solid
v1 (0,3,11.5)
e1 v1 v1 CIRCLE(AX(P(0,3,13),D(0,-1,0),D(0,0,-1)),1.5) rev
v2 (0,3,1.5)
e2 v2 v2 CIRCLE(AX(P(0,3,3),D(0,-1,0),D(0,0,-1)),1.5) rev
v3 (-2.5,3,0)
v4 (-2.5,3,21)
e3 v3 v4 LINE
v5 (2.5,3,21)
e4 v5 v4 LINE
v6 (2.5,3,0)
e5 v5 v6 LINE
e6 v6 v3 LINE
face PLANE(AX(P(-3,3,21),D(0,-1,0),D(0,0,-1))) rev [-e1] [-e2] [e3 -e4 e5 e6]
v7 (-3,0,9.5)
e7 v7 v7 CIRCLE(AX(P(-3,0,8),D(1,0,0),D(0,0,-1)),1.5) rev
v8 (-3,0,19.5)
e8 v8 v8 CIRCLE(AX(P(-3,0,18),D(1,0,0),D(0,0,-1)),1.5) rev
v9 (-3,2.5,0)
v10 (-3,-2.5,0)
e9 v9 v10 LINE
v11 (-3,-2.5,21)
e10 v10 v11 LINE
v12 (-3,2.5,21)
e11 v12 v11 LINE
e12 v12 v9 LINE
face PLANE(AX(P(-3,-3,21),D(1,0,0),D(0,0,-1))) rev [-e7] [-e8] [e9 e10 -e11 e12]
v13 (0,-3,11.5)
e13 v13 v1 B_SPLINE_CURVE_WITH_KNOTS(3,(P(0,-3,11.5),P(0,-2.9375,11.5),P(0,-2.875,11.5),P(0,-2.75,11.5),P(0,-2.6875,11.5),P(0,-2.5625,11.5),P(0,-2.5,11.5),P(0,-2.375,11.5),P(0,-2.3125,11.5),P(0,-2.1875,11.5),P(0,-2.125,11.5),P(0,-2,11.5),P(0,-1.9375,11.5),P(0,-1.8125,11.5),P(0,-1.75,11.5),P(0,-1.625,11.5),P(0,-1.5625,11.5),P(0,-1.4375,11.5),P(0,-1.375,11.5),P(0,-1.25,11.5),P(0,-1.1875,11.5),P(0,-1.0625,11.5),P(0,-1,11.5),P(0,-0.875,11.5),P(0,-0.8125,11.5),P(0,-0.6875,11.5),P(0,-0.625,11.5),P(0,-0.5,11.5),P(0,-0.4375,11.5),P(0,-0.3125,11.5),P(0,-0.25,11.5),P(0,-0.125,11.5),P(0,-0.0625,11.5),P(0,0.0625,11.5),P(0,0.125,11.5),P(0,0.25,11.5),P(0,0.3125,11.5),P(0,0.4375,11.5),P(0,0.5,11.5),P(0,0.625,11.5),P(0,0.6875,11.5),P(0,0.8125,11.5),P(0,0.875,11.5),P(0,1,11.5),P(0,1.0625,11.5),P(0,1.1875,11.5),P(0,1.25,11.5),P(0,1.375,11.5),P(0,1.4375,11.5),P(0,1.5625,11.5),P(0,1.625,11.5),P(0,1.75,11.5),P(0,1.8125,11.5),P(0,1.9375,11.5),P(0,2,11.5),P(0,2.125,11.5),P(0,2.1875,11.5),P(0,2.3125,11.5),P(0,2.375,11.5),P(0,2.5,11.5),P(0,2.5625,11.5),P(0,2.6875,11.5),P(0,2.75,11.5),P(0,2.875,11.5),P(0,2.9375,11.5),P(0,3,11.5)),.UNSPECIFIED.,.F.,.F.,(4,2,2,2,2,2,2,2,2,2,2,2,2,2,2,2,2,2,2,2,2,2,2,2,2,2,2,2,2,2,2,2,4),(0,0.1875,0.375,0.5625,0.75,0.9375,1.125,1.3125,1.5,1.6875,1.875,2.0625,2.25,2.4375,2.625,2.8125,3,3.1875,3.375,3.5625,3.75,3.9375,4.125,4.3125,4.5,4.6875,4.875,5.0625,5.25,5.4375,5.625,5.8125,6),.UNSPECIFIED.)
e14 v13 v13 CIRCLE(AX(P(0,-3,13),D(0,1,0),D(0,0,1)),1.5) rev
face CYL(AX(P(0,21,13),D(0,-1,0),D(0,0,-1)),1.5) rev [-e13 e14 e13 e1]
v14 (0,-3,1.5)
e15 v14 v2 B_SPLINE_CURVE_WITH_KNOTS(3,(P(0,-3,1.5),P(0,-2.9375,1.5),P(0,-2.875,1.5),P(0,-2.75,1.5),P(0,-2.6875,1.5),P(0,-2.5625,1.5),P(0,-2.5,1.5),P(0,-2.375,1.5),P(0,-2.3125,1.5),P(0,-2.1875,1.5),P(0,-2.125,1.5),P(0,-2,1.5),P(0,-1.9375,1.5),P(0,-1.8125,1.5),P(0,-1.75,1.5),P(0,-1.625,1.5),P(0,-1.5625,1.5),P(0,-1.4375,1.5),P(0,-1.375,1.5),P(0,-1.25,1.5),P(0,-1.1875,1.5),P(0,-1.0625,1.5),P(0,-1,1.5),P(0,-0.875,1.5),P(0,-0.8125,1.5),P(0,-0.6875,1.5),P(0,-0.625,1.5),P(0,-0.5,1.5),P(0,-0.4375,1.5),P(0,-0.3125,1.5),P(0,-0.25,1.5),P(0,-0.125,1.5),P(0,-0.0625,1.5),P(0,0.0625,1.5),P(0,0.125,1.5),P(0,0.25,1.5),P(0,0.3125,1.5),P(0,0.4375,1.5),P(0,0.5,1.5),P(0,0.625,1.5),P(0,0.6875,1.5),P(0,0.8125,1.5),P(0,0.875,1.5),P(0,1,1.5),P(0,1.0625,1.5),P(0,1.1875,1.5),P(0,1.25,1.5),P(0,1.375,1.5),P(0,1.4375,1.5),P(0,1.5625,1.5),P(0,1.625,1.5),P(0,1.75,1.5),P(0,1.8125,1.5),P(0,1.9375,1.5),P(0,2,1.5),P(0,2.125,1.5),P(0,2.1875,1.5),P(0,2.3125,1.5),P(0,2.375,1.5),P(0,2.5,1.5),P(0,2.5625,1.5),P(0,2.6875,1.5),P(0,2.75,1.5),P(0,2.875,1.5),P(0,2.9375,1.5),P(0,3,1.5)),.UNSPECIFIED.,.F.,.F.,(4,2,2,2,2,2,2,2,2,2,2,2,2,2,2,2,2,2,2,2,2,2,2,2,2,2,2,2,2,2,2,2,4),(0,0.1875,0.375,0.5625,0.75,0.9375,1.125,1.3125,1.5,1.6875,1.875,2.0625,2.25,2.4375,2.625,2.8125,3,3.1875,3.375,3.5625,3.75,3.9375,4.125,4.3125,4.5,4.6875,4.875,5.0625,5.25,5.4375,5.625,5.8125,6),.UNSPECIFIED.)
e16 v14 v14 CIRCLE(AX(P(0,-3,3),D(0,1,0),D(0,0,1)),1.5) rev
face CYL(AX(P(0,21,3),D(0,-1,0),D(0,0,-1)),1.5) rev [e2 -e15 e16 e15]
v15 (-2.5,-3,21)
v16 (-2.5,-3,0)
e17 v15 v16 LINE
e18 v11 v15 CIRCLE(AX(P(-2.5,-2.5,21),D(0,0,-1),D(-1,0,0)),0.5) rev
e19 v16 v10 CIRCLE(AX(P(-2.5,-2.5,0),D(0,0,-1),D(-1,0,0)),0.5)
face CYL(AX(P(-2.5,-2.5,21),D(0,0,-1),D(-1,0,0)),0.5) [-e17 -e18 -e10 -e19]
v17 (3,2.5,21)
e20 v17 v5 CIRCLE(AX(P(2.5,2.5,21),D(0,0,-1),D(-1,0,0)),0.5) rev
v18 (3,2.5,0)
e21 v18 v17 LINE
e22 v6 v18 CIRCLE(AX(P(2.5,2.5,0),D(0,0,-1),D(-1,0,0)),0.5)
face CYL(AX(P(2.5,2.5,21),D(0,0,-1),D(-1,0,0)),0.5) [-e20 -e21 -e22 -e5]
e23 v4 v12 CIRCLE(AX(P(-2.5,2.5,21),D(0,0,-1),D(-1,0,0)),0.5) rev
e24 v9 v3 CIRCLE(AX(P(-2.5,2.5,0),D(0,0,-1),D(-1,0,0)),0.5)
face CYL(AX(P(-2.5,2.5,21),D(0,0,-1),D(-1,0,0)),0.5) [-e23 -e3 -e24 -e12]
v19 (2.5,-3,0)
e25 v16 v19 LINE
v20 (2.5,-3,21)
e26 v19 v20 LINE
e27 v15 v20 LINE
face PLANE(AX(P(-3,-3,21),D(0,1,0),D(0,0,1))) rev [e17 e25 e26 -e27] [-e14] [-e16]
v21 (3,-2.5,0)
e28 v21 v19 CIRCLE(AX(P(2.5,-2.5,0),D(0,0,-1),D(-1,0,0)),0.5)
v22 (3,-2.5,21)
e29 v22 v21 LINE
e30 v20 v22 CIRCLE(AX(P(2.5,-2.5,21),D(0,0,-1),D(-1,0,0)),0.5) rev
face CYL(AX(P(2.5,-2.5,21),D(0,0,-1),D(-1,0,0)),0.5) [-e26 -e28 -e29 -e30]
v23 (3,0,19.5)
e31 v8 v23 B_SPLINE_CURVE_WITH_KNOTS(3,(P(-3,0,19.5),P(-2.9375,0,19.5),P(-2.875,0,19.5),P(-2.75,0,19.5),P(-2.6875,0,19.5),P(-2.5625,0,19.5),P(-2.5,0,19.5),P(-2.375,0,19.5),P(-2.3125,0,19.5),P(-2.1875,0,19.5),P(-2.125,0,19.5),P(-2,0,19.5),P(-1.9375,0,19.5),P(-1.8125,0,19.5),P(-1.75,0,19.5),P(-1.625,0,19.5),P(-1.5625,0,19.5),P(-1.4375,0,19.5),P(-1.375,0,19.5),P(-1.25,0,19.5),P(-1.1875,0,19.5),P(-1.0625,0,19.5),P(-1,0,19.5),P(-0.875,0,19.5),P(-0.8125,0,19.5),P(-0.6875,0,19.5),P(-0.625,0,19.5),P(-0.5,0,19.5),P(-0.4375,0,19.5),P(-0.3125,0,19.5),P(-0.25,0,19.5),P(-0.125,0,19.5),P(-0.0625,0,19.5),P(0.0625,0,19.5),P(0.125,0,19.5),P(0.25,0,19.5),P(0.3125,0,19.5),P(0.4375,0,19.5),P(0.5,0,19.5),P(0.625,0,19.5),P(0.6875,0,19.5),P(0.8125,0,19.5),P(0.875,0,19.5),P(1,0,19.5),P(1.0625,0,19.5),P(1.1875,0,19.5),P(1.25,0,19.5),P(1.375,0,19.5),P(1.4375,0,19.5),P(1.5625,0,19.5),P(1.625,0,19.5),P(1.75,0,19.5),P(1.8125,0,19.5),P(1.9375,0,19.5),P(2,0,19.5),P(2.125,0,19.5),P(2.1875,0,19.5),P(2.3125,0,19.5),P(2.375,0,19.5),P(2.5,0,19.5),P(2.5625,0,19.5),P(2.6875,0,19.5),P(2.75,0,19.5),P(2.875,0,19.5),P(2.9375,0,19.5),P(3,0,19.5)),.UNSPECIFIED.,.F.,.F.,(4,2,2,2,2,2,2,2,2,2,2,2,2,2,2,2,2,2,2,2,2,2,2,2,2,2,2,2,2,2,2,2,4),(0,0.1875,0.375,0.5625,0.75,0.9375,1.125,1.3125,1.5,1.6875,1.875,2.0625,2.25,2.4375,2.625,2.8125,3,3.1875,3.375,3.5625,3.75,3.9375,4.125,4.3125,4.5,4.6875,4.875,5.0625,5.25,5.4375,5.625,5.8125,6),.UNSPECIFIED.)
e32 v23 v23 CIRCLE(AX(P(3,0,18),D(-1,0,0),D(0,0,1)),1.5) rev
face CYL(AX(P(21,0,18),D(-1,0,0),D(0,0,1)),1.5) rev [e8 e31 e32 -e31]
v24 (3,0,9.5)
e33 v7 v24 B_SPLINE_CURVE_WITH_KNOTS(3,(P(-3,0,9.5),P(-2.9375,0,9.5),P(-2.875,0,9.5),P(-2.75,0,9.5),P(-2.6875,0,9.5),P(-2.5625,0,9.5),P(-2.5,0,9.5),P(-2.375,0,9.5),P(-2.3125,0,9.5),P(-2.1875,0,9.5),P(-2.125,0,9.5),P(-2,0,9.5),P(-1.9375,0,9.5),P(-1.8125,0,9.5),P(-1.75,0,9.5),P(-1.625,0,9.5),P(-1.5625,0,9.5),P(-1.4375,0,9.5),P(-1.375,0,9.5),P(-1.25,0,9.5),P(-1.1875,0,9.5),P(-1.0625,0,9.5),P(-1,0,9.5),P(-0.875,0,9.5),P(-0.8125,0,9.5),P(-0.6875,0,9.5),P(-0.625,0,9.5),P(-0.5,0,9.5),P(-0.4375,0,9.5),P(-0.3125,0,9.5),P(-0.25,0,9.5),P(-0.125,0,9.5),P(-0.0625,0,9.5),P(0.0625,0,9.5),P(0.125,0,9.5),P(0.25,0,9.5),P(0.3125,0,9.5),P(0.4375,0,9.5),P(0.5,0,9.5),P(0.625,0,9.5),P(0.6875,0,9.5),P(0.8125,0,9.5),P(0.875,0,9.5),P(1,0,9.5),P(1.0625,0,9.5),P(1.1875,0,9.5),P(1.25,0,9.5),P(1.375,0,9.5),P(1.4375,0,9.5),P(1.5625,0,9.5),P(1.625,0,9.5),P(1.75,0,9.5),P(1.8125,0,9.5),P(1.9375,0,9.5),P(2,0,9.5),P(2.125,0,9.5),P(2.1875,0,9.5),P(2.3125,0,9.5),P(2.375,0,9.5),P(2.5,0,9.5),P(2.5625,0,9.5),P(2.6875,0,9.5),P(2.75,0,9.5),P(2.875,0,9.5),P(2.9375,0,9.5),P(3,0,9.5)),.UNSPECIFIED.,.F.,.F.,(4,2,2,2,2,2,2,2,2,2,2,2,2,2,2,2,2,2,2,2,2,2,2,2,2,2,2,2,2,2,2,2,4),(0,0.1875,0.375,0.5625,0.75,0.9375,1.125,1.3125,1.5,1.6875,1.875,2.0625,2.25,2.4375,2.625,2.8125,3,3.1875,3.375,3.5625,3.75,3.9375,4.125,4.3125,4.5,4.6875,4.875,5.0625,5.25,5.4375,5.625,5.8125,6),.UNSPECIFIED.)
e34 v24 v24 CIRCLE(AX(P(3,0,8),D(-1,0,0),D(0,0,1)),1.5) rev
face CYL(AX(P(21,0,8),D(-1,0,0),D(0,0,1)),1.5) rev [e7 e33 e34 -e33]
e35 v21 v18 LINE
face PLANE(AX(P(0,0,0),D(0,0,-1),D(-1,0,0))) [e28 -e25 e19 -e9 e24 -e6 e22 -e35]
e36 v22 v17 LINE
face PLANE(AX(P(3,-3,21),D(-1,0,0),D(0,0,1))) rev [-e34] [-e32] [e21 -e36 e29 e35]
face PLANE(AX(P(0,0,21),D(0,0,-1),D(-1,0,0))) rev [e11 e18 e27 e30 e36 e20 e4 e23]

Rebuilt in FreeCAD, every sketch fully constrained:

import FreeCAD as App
import Part
import Sketcher
from FreeCAD import Vector


def edges_at(feature, points):
    """Names of the edges that pass closest to the given points."""
    edges = feature.Shape.Edges
    near = lambda p: min(range(len(edges)), key=lambda i: edges[i].distToShape(Part.Vertex(*p))[0])
    return sorted({f"Edge{near(p) + 1}" for p in points})


def add_polygon(sketch, points):
    """Adds a closed chain of lines whose ends are joined by coincident constraints."""
    first, n = sketch.GeometryCount, len(points)
    for a, b in zip(points, points[1:] + points[:1]):
        sketch.addGeometry(Part.LineSegment(App.Vector(*a, 0), App.Vector(*b, 0)), False)
    for i in range(n):
        sketch.addConstraint(Sketcher.Constraint("Coincident", first + i, 2, first + (i + 1) % n, 1))

doc = App.newDocument("Part")
body = doc.addObject("PartDesign::Body", "Body")

# Sketch on XY plane
sketch1 = doc.addObject("Sketcher::SketchObject", "Sketch")
body.addObject(sketch1)
sketch1.AttachmentSupport = (doc.XY_Plane, [""])
sketch1.MapMode = "FlatFace"
add_polygon(sketch1, [(-3, 3), (-3, -3), (3, -3), (3, 3)])  # lines 0-3
sketch1.addConstraint(Sketcher.Constraint("Vertical", 0))
sketch1.addConstraint(Sketcher.Constraint("Horizontal", 1))
sketch1.addConstraint(Sketcher.Constraint("Vertical", 2))
sketch1.addConstraint(Sketcher.Constraint("Horizontal", 3))
sketch1.addConstraint(Sketcher.Constraint("Symmetric", 0, 2, 2, 2, -1, 1))
sketch1.addConstraint(Sketcher.Constraint("Equal", 3, 0))
sketch1.addConstraint(Sketcher.Constraint("DistanceX", 1, 1, 1, 2, 6.0))
pad1 = doc.addObject("PartDesign::Pad", "Pad")
body.addObject(pad1)
pad1.Profile = sketch1
pad1.Length = 21

# Sketch on XZ plane
sketch2 = doc.addObject("Sketcher::SketchObject", "Sketch001")
body.addObject(sketch2)
sketch2.AttachmentSupport = (doc.XZ_Plane, [""])
sketch2.MapMode = "FlatFace"
sketch2.addGeometry(Part.Circle(Vector(0, 3, 0), Vector(0, 0, 1), 1.5), False)
sketch2.addGeometry(Part.Circle(Vector(0, 13, 0), Vector(0, 0, 1), 1.5), False)
sketch2.addConstraint(Sketcher.Constraint("Equal", 0, 1))
sketch2.addConstraint(Sketcher.Constraint("PointOnObject", 0, 3, -2))
sketch2.addConstraint(Sketcher.Constraint("PointOnObject", 1, 3, -2))
sketch2.addConstraint(Sketcher.Constraint("Diameter", 0, 3.0))
sketch2.addConstraint(Sketcher.Constraint("DistanceY", -1, 1, 0, 3, 3.0))
sketch2.addConstraint(Sketcher.Constraint("DistanceY", -1, 1, 1, 3, 13.0))
pocket1 = doc.addObject("PartDesign::Pocket", "Pocket")
body.addObject(pocket1)
pocket1.Profile = sketch2
pocket1.Type = "ThroughAll"
pocket1.Midplane = True

# Sketch on YZ plane
sketch3 = doc.addObject("Sketcher::SketchObject", "Sketch002")
body.addObject(sketch3)
sketch3.AttachmentSupport = (doc.YZ_Plane, [""])
sketch3.MapMode = "FlatFace"
sketch3.addGeometry(Part.Circle(Vector(0, 18, 0), Vector(0, 0, 1), 1.5), False)
sketch3.addGeometry(Part.Circle(Vector(0, 8, 0), Vector(0, 0, 1), 1.5), False)
sketch3.addConstraint(Sketcher.Constraint("Equal", 0, 1))
sketch3.addConstraint(Sketcher.Constraint("PointOnObject", 0, 3, -2))
sketch3.addConstraint(Sketcher.Constraint("PointOnObject", 1, 3, -2))
sketch3.addConstraint(Sketcher.Constraint("Diameter", 0, 3.0))
sketch3.addConstraint(Sketcher.Constraint("DistanceY", -1, 1, 0, 3, 18.0))
sketch3.addConstraint(Sketcher.Constraint("DistanceY", -1, 1, 1, 3, 8.0))
pocket2 = doc.addObject("PartDesign::Pocket", "Pocket001")
body.addObject(pocket2)
pocket2.Profile = sketch3
pocket2.Type = "ThroughAll"
pocket2.Midplane = True
doc.recompute()

fillet = doc.addObject("PartDesign::Fillet", "Fillet")
body.addObject(fillet)
fillet.Base = (pocket2, edges_at(pocket2, [
    (3, -3, 10.5),
    (-3, -3, 10.5),
    (-3, 3, 10.5),
    (3, 3, 10.5),
]))
fillet.Radius = 0.5

doc.recompute()
